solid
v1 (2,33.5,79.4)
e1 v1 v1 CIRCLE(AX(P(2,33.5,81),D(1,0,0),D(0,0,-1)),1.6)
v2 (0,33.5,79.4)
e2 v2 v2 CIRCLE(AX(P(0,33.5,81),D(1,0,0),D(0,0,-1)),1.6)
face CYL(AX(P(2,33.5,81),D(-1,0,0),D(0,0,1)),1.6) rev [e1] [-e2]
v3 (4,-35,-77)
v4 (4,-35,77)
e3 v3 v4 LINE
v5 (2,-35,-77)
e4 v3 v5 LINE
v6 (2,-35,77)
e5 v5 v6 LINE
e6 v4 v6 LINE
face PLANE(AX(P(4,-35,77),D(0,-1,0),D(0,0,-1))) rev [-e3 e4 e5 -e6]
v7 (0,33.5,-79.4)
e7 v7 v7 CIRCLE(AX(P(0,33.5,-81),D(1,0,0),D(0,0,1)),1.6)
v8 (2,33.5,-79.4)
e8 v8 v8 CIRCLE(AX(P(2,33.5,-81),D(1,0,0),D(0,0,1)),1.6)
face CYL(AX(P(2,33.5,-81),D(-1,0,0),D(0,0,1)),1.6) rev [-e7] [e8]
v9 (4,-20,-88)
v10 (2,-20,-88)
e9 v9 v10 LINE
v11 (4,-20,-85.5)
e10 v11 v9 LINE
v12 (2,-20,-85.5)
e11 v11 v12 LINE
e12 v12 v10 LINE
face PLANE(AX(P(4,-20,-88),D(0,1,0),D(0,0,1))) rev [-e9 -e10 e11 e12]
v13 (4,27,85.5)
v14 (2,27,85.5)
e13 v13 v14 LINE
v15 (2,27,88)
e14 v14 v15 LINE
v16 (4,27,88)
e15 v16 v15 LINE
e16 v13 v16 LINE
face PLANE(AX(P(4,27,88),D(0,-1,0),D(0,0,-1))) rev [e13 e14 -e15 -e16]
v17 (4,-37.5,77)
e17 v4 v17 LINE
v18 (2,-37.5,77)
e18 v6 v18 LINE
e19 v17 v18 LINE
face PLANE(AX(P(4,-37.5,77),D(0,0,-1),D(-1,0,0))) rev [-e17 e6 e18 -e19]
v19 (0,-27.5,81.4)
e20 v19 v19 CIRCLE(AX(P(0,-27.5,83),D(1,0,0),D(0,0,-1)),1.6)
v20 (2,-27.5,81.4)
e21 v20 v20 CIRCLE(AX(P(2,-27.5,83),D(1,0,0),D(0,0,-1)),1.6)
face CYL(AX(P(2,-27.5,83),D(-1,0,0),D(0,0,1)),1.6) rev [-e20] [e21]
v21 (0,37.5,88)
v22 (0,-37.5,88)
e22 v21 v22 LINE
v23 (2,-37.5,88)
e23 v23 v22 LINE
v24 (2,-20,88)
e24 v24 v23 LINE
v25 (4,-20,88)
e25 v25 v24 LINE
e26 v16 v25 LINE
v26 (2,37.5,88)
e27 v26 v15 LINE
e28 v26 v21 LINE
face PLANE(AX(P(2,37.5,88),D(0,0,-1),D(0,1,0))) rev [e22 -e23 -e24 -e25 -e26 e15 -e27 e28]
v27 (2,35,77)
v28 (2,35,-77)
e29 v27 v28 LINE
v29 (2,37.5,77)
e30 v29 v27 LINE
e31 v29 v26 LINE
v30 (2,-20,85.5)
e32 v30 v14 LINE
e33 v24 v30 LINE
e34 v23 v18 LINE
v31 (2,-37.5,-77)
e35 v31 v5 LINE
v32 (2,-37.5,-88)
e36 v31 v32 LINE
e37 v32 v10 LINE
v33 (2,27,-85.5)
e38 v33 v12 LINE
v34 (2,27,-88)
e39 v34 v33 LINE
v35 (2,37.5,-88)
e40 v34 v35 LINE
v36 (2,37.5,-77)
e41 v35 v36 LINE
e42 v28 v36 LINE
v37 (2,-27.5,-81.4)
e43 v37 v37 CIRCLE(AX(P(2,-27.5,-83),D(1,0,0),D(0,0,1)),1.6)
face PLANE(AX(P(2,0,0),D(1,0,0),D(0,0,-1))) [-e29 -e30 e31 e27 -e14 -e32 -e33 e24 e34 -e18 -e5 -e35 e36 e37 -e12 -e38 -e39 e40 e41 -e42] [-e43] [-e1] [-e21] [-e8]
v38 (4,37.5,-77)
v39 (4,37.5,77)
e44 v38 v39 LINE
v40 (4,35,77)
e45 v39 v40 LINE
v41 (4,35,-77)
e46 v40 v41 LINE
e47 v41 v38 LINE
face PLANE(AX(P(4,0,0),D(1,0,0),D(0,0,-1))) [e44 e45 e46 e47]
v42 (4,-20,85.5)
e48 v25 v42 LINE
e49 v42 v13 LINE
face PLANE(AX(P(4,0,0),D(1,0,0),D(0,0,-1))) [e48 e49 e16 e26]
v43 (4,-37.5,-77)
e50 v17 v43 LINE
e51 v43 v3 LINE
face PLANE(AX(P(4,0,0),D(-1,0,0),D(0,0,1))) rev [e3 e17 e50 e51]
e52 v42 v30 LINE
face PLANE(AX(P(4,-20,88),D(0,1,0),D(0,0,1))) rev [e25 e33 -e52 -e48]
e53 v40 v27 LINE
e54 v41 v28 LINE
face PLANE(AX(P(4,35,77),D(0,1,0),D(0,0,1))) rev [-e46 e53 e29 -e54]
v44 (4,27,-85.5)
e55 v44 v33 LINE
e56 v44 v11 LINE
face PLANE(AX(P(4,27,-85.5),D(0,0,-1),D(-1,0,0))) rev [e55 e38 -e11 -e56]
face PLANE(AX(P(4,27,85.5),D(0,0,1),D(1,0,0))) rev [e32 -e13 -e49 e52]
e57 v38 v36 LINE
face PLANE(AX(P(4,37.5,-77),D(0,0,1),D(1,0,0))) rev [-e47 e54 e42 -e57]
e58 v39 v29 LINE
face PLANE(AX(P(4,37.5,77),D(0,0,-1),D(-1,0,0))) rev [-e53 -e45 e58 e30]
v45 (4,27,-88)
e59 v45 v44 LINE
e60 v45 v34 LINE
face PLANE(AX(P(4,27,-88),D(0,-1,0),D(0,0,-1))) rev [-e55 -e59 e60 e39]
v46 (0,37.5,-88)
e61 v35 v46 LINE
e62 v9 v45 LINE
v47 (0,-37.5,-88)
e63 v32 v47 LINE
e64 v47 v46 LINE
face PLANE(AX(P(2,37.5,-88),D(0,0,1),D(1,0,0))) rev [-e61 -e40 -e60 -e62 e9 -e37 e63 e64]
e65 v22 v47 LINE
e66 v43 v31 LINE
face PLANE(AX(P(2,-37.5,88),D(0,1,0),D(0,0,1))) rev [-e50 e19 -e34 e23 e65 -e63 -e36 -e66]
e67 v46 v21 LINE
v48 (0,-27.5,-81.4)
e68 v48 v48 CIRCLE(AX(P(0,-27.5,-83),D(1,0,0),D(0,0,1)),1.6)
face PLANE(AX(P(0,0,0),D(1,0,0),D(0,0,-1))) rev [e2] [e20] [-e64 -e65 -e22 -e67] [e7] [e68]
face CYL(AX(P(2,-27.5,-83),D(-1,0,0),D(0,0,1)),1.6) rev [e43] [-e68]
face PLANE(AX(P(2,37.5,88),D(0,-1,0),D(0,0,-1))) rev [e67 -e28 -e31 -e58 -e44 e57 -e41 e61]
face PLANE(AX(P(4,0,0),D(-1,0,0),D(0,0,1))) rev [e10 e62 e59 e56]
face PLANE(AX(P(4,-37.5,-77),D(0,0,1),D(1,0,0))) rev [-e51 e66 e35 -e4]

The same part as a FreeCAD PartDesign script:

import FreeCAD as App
import Part
import Sketcher

V = App.Vector

doc = App.newDocument("Part")
body = doc.addObject("PartDesign::Body", "Body")

# Sketch on YZ plane
sketch1 = doc.addObject("Sketcher::SketchObject", "Sketch")
body.addObject(sketch1)
sketch1.AttachmentSupport = (doc.YZ_Plane, [""])
sketch1.MapMode = "FlatFace"
sketch1.addGeometry([
    Part.LineSegment(V(37.5, 88, 0), V(-37.5, 88, 0)),  # 0
    Part.LineSegment(V(-37.5, 88, 0), V(-37.5, -88, 0)),  # 1
    Part.LineSegment(V(-37.5, -88, 0), V(37.5, -88, 0)),  # 2
    Part.LineSegment(V(37.5, -88, 0), V(37.5, 88, 0)),  # 3
    Part.Circle(V(-27.5, 83, 0), V(0, 0, 1), 1.6),  # 4
    Part.Circle(V(-27.5, -83, 0), V(0, 0, 1), 1.6),  # 5
    Part.Circle(V(33.5, 81, 0), V(0, 0, 1), 1.6),  # 6
    Part.Circle(V(33.5, -81, 0), V(0, 0, 1), 1.6),  # 7
], False)
sketch1.addConstraint([
    Sketcher.Constraint("Coincident", 0, 2, 1, 1),
    Sketcher.Constraint("Coincident", 1, 2, 2, 1),
    Sketcher.Constraint("Coincident", 2, 2, 3, 1),
    Sketcher.Constraint("Coincident", 3, 2, 0, 1),
    Sketcher.Constraint("Horizontal", 0),
    Sketcher.Constraint("Vertical", 1),
    Sketcher.Constraint("Horizontal", 2),
    Sketcher.Constraint("Vertical", 3),
    Sketcher.Constraint("Equal", 4, 5),
    Sketcher.Constraint("Equal", 5, 6),
    Sketcher.Constraint("Equal", 6, 7),
    Sketcher.Constraint("Symmetric", 0, 2, 2, 2, -1, 1),
    Sketcher.Constraint("Symmetric", 4, 3, 5, 3, -1),
    Sketcher.Constraint("Symmetric", 6, 3, 7, 3, -1),
    Sketcher.Constraint("Diameter", 4, 3.2),
    Sketcher.Constraint("DistanceX", 0, 2, 0, 1, 75.0),
    Sketcher.Constraint("DistanceY", 1, 2, 1, 1, 176.0),
    Sketcher.Constraint("DistanceY", -1, 1, 4, 3, 83.0),
    Sketcher.Constraint("DistanceY", -1, 1, 6, 3, 81.0),
    Sketcher.Constraint("DistanceX", 4, 3, 6, 3, 61.0),
    Sketcher.Constraint("DistanceX", 0, 2, 4, 3, 10.0),
])
pad1 = doc.addObject("PartDesign::Pad", "Pad")
body.addObject(pad1)
pad1.Profile = sketch1
pad1.Length = 2

# Sketch on YZ plane
sketch2 = doc.addObject("Sketcher::SketchObject", "Sketch001")
body.addObject(sketch2)
sketch2.AttachmentSupport = (doc.YZ_Plane, [""])
sketch2.MapMode = "FlatFace"
sketch2.AttachmentOffset = App.Placement(V(0, 0, 2), App.Rotation())
sketch2.addGeometry([
    Part.LineSegment(V(-35, 77, 0), V(-37.5, 77, 0)),  # 0
    Part.LineSegment(V(-37.5, 77, 0), V(-37.5, -77, 0)),  # 1
    Part.LineSegment(V(-37.5, -77, 0), V(-35, -77, 0)),  # 2
    Part.LineSegment(V(-35, -77, 0), V(-35, 77, 0)),  # 3
    Part.LineSegment(V(37.5, 77, 0), V(35, 77, 0)),  # 4
    Part.LineSegment(V(35, 77, 0), V(35, -77, 0)),  # 5
    Part.LineSegment(V(35, -77, 0), V(37.5, -77, 0)),  # 6
    Part.LineSegment(V(37.5, -77, 0), V(37.5, 77, 0)),  # 7
], False)
sketch2.addConstraint([
    Sketcher.Constraint("Coincident", 0, 2, 1, 1),
    Sketcher.Constraint("Coincident", 1, 2, 2, 1),
    Sketcher.Constraint("Coincident", 2, 2, 3, 1),
    Sketcher.Constraint("Coincident", 3, 2, 0, 1),
    Sketcher.Constraint("Coincident", 4, 2, 5, 1),
    Sketcher.Constraint("Coincident", 5, 2, 6, 1),
    Sketcher.Constraint("Coincident", 6, 2, 7, 1),
    Sketcher.Constraint("Coincident", 7, 2, 4, 1),
    Sketcher.Constraint("Horizontal", 0),
    Sketcher.Constraint("Vertical", 1),
    Sketcher.Constraint("Horizontal", 2),
    Sketcher.Constraint("Vertical", 3),
    Sketcher.Constraint("Horizontal", 4),
    Sketcher.Constraint("Vertical", 5),
    Sketcher.Constraint("Horizontal", 6),
    Sketcher.Constraint("Vertical", 7),
    Sketcher.Constraint("Symmetric", 2, 2, 4, 2, -1, 1),
    Sketcher.Constraint("Symmetric", 0, 2, 6, 2, -1, 1),
    Sketcher.Constraint("Horizontal", 3, 2, 4, 2),
    Sketcher.Constraint("DistanceY", 1, 2, 1, 1, 154.0),
    Sketcher.Constraint("DistanceX", 0, 2, 0, 1, 2.5),
    Sketcher.Constraint("DistanceX", 2, 2, -1, 1, 35.0),
])
pad2 = doc.addObject("PartDesign::Pad", "Pad001")
body.addObject(pad2)
pad2.Profile = sketch2
pad2.Length = 2

# Sketch on YZ plane
sketch3 = doc.addObject("Sketcher::SketchObject", "Sketch002")
body.addObject(sketch3)
sketch3.AttachmentSupport = (doc.YZ_Plane, [""])
sketch3.MapMode = "FlatFace"
sketch3.AttachmentOffset = App.Placement(V(0, 0, 2), App.Rotation())
sketch3.addGeometry([
    Part.LineSegment(V(27, 88, 0), V(-20, 88, 0)),  # 0
    Part.LineSegment(V(-20, 88, 0), V(-20, 85.5, 0)),  # 1
    Part.LineSegment(V(-20, 85.5, 0), V(27, 85.5, 0)),  # 2
    Part.LineSegment(V(27, 85.5, 0), V(27, 88, 0)),  # 3
    Part.LineSegment(V(27, -85.5, 0), V(-20, -85.5, 0)),  # 4
    Part.LineSegment(V(-20, -85.5, 0), V(-20, -88, 0)),  # 5
    Part.LineSegment(V(-20, -88, 0), V(27, -88, 0)),  # 6
    Part.LineSegment(V(27, -88, 0), V(27, -85.5, 0)),  # 7
], False)
sketch3.addConstraint([
    Sketcher.Constraint("Coincident", 0, 2, 1, 1),
    Sketcher.Constraint("Coincident", 1, 2, 2, 1),
    Sketcher.Constraint("Coincident", 2, 2, 3, 1),
    Sketcher.Constraint("Coincident", 3, 2, 0, 1),
    Sketcher.Constraint("Coincident", 4, 2, 5, 1),
    Sketcher.Constraint("Coincident", 5, 2, 6, 1),
    Sketcher.Constraint("Coincident", 6, 2, 7, 1),
    Sketcher.Constraint("Coincident", 7, 2, 4, 1),
    Sketcher.Constraint("Horizontal", 0),
    Sketcher.Constraint("Vertical", 1),
    Sketcher.Constraint("Horizontal", 2),
    Sketcher.Constraint("Vertical", 3),
    Sketcher.Constraint("Horizontal", 4),
    Sketcher.Constraint("Vertical", 5),
    Sketcher.Constraint("Horizontal", 6),
    Sketcher.Constraint("Vertical", 7),
    Sketcher.Constraint("Symmetric", 1, 2, 4, 2, -1),
    Sketcher.Constraint("Symmetric", 3, 2, 6, 2, -1),
    Sketcher.Constraint("DistanceX", 0, 2, 0, 1, 47.0),
    Sketcher.Constraint("DistanceY", 1, 2, 1, 1, 2.5),
    Sketcher.Constraint("DistanceX", 0, 2, -1, 1, 20.0),
    Sketcher.Constraint("DistanceY", -1, 1, 0, 2, 88.0),
])
pad3 = doc.addObject("PartDesign::Pad", "Pad002")
body.addObject(pad3)
pad3.Profile = sketch3
pad3.Length = 2

doc.recompute()
